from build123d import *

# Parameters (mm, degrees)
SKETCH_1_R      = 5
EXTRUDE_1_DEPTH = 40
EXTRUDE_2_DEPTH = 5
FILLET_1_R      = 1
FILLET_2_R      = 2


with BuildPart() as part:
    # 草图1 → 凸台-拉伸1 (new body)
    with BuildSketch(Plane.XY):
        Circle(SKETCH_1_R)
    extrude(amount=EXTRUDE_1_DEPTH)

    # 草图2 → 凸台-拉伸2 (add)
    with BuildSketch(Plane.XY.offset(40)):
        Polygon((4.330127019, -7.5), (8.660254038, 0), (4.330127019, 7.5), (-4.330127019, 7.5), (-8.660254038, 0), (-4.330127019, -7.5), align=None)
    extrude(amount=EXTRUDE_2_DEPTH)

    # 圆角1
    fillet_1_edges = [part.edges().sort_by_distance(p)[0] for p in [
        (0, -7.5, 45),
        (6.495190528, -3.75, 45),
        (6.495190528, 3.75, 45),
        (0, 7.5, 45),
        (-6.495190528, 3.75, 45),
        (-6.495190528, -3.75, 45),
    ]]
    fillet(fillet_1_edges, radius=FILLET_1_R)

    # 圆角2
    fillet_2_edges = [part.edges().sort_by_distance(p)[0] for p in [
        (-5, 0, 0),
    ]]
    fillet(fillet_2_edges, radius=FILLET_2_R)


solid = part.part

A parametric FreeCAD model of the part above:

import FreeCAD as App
import Part
import Sketcher

V = App.Vector
Q = App.Units.Quantity


def edges_at(feature, points):
    """Names of the edges that pass closest to the given points."""
    edges = feature.Shape.Edges
    near = lambda p: min(range(len(edges)), key=lambda i: edges[i].distToShape(Part.Vertex(*p))[0])
    return sorted({f"Edge{near(p) + 1}" for p in points})


def add_polygon(sketch, points):
    """Adds a closed chain of lines whose ends are joined by coincident constraints."""
    first, n = sketch.GeometryCount, len(points)
    for a, b in zip(points, points[1:] + points[:1]):
        sketch.addGeometry(Part.LineSegment(App.Vector(*a, 0), App.Vector(*b, 0)), False)
    for i in range(n):
        sketch.addConstraint(Sketcher.Constraint("Coincident", first + i, 2, first + (i + 1) % n, 1))

doc = App.newDocument("Part")
body = doc.addObject("PartDesign::Body", "Body")

# Sketch on XY plane
sketch1 = body.newObject("Sketcher::SketchObject", "Sketch")
sketch1.AttachmentSupport = (doc.getObject("XY_Plane"), [""])
sketch1.MapMode = "FlatFace"
sketch1.addGeometry(Part.Circle(V(0, 0, 0), V(0, 0, 1), 5), False)
sketch1.addConstraint(Sketcher.Constraint("Coincident", 0, 3, -1, 1))
sketch1.addConstraint(Sketcher.Constraint("Diameter", 0, 10.0))
pad1 = body.newObject("PartDesign::Pad", "Pad")
pad1.Profile = sketch1
pad1.Length = 40

# Sketch on XY plane
sketch2 = body.newObject("Sketcher::SketchObject", "Sketch001")
sketch2.AttachmentSupport = (doc.getObject("XY_Plane"), [""])
sketch2.MapMode = "FlatFace"
sketch2.AttachmentOffset = App.Placement(V(0, 0, 40), App.Rotation())
add_polygon(sketch2, [(4, -8), (9, 0), (4, 8), (-4, 8), (-9, 0), (-4, -8)])  # lines 0-5
sketch2.addConstraint(Sketcher.Constraint("Horizontal", 2))
sketch2.addConstraint(Sketcher.Constraint("Horizontal", 5))
sketch2.addConstraint(Sketcher.Constraint("Symmetric", 0, 2, 3, 2, -1, 1))
sketch2.addConstraint(Sketcher.Constraint("Symmetric", 1, 2, 4, 2, -1, 1))
sketch2.addConstraint(Sketcher.Constraint("PointOnObject", 0, 2, -1))
sketch2.addConstraint(Sketcher.Constraint("Parallel", 0, 3))
sketch2.addConstraint(Sketcher.Constraint("Vertical", 2, 2, 4, 2))
sketch2.addConstraint(Sketcher.Constraint("Angle", 0, Q("60 deg")))
sketch2.addConstraint(Sketcher.Constraint("DistanceY", 4, 2, 2, 2, 15.0))
sketch2.addConstraint(Sketcher.Constraint("DistanceX", 2, 2, 2, 1, 8.660254))
pad2 = body.newObject("PartDesign::Pad", "Pad001")
pad2.Profile = sketch2
pad2.Length = 5
doc.recompute()

fillet = body.newObject("PartDesign::Fillet", "Fillet")
fillet.Base = (pad2, edges_at(pad2, [
    (0, -7.5, 45),
    (6.495, -3.75, 45),
    (6.495, 3.75, 45),
    (0, 7.5, 45),
    (-6.495, 3.75, 45),
    (-6.495, -3.75, 45),
]))
fillet.Radius = 1
doc.recompute()

fillet2 = body.newObject("PartDesign::Fillet", "Fillet001")
fillet2.Base = (fillet, edges_at(fillet, [(-5, 0, 0)]))
fillet2.Radius = 2

doc.recompute()
